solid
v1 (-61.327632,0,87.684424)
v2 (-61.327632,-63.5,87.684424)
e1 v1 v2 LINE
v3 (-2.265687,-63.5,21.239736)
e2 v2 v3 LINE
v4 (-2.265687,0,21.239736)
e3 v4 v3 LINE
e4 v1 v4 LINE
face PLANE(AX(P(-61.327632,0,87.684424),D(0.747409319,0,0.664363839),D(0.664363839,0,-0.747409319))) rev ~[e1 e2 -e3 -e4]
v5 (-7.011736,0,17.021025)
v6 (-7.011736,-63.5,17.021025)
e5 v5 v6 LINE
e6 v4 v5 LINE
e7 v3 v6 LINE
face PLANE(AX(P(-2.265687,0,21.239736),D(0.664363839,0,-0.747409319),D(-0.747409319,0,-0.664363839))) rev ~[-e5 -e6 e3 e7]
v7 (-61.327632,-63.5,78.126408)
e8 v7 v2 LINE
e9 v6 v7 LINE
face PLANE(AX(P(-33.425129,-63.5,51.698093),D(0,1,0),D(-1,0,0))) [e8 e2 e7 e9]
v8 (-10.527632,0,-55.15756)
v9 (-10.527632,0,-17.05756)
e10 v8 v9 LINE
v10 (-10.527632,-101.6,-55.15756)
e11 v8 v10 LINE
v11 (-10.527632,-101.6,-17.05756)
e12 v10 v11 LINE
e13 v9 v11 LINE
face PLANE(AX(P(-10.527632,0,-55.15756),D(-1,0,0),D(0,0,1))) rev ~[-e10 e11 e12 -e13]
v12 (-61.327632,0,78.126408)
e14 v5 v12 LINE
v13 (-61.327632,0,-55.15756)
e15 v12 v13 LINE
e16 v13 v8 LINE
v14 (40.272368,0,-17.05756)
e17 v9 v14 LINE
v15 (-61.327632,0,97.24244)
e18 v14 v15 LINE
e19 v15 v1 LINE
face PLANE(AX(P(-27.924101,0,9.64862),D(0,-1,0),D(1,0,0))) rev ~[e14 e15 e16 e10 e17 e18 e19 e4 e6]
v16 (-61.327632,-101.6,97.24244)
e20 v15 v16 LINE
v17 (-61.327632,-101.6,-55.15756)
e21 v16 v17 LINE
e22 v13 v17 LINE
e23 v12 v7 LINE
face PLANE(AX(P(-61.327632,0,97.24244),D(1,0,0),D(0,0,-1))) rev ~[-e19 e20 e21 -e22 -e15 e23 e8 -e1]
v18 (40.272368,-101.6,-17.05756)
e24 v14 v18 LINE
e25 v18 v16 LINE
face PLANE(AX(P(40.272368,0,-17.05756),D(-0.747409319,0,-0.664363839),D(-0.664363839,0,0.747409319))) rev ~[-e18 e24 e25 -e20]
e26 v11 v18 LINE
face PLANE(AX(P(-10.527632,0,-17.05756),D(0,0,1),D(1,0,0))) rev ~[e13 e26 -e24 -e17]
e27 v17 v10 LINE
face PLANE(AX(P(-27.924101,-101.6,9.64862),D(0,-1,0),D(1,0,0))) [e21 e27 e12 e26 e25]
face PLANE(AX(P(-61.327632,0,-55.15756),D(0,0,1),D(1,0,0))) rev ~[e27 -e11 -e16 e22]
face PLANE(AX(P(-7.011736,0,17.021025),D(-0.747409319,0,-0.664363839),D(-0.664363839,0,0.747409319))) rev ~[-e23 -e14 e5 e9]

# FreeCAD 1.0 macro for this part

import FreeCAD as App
import Part
import Sketcher
Q = App.Units.Quantity

doc = App.newDocument("Part")
body = doc.addObject("PartDesign::Body", "Body")

# Sketch on XZ plane
sketch1 = body.newObject("Sketcher::SketchObject", "Sketch")
sketch1.AttachmentSupport = (doc.getObject("XZ_Plane"), [""])
sketch1.MapMode = "FlatFace"
sketch1.addGeometry([
    Part.LineSegment(App.Vector(-61.327632, 97.24244, 0), App.Vector(-61.327632, -55.15756, 0)),  # 0
    Part.LineSegment(App.Vector(-61.327632, -55.15756, 0), App.Vector(-10.527632, -55.15756, 0)),  # 1
    Part.LineSegment(App.Vector(-10.527632, -55.15756, 0), App.Vector(-10.527632, -17.05756, 0)),  # 2
    Part.LineSegment(App.Vector(-10.527632, -17.05756, 0), App.Vector(40.272368, -17.05756, 0)),  # 3
    Part.LineSegment(App.Vector(40.272368, -17.05756, 0), App.Vector(-61.327632, 97.24244, 0)),  # 4
], False)
sketch1.addConstraint([
    Sketcher.Constraint("Coincident", 0, 2, 1, 1),
    Sketcher.Constraint("Coincident", 1, 2, 2, 1),
    Sketcher.Constraint("Coincident", 2, 2, 3, 1),
    Sketcher.Constraint("Coincident", 3, 2, 4, 1),
    Sketcher.Constraint("Coincident", 4, 2, 0, 1),
    Sketcher.Constraint("Vertical", 0),
    Sketcher.Constraint("Horizontal", 1),
    Sketcher.Constraint("Vertical", 2),
    Sketcher.Constraint("Horizontal", 3),
    Sketcher.Constraint("Equal", 1, 3),
    Sketcher.Constraint("DistanceX", 1, 1, 1, 2, Q("2 in")),
    Sketcher.Constraint("DistanceY", 0, 2, 0, 1, Q("6 in")),
    Sketcher.Constraint("DistanceY", 2, 1, 2, 2, Q("1.5 in")),
    Sketcher.Constraint("DistanceY", 0, 2, -1, 1, 55.15756),
    Sketcher.Constraint("DistanceX", 0, 2, -1, 1, 61.327632),
])
pad1 = body.newObject("PartDesign::Pad", "Pad")
pad1.Profile = sketch1
pad1.Length = Q("4 in")

# Sketch on XZ plane
sketch2 = body.newObject("Sketcher::SketchObject", "Sketch001")
sketch2.AttachmentSupport = (doc.getObject("XZ_Plane"), [""])
sketch2.MapMode = "FlatFace"
sketch2.addGeometry([
    Part.LineSegment(App.Vector(-61.327632, 78.126408, 0), App.Vector(-61.327632, 87.684424, 0)),
    Part.LineSegment(App.Vector(-61.327632, 87.684424, 0), App.Vector(-2.265687, 21.239736, 0)),
    Part.LineSegment(App.Vector(-2.265687, 21.239736, 0), App.Vector(-7.011736, 17.021025, 0)),
    Part.LineSegment(App.Vector(-7.011736, 17.021025, 0), App.Vector(-61.327632, 78.126408, 0)),
], False)
sketch2.addConstraint([
    Sketcher.Constraint("Coincident", 0, 2, 1, 1),
    Sketcher.Constraint("Coincident", 1, 2, 2, 1),
    Sketcher.Constraint("Coincident", 2, 2, 3, 1),
    Sketcher.Constraint("Coincident", 3, 2, 0, 1),
    Sketcher.Constraint("Vertical", 0),
    Sketcher.Constraint("Perpendicular", 1, 2),
    Sketcher.Constraint("Perpendicular", 2, 3),
    Sketcher.Constraint("Distance", 1, Q("3.5 in")),
    Sketcher.Constraint("Distance", 2, Q("0.25 in")),
    Sketcher.Constraint("Distance", 3, Q("3.21875 in")),
    Sketcher.Constraint("DistanceY", -1, 1, 3, 2, 78.126408),
    Sketcher.Constraint("DistanceX", 0, 2, -1, 1, 61.327632),
])
pocket1 = body.newObject("PartDesign::Pocket", "Pocket")
pocket1.Profile = sketch2
pocket1.Length = Q("2.5 in")
pocket1.Reversed = True

doc.recompute()
